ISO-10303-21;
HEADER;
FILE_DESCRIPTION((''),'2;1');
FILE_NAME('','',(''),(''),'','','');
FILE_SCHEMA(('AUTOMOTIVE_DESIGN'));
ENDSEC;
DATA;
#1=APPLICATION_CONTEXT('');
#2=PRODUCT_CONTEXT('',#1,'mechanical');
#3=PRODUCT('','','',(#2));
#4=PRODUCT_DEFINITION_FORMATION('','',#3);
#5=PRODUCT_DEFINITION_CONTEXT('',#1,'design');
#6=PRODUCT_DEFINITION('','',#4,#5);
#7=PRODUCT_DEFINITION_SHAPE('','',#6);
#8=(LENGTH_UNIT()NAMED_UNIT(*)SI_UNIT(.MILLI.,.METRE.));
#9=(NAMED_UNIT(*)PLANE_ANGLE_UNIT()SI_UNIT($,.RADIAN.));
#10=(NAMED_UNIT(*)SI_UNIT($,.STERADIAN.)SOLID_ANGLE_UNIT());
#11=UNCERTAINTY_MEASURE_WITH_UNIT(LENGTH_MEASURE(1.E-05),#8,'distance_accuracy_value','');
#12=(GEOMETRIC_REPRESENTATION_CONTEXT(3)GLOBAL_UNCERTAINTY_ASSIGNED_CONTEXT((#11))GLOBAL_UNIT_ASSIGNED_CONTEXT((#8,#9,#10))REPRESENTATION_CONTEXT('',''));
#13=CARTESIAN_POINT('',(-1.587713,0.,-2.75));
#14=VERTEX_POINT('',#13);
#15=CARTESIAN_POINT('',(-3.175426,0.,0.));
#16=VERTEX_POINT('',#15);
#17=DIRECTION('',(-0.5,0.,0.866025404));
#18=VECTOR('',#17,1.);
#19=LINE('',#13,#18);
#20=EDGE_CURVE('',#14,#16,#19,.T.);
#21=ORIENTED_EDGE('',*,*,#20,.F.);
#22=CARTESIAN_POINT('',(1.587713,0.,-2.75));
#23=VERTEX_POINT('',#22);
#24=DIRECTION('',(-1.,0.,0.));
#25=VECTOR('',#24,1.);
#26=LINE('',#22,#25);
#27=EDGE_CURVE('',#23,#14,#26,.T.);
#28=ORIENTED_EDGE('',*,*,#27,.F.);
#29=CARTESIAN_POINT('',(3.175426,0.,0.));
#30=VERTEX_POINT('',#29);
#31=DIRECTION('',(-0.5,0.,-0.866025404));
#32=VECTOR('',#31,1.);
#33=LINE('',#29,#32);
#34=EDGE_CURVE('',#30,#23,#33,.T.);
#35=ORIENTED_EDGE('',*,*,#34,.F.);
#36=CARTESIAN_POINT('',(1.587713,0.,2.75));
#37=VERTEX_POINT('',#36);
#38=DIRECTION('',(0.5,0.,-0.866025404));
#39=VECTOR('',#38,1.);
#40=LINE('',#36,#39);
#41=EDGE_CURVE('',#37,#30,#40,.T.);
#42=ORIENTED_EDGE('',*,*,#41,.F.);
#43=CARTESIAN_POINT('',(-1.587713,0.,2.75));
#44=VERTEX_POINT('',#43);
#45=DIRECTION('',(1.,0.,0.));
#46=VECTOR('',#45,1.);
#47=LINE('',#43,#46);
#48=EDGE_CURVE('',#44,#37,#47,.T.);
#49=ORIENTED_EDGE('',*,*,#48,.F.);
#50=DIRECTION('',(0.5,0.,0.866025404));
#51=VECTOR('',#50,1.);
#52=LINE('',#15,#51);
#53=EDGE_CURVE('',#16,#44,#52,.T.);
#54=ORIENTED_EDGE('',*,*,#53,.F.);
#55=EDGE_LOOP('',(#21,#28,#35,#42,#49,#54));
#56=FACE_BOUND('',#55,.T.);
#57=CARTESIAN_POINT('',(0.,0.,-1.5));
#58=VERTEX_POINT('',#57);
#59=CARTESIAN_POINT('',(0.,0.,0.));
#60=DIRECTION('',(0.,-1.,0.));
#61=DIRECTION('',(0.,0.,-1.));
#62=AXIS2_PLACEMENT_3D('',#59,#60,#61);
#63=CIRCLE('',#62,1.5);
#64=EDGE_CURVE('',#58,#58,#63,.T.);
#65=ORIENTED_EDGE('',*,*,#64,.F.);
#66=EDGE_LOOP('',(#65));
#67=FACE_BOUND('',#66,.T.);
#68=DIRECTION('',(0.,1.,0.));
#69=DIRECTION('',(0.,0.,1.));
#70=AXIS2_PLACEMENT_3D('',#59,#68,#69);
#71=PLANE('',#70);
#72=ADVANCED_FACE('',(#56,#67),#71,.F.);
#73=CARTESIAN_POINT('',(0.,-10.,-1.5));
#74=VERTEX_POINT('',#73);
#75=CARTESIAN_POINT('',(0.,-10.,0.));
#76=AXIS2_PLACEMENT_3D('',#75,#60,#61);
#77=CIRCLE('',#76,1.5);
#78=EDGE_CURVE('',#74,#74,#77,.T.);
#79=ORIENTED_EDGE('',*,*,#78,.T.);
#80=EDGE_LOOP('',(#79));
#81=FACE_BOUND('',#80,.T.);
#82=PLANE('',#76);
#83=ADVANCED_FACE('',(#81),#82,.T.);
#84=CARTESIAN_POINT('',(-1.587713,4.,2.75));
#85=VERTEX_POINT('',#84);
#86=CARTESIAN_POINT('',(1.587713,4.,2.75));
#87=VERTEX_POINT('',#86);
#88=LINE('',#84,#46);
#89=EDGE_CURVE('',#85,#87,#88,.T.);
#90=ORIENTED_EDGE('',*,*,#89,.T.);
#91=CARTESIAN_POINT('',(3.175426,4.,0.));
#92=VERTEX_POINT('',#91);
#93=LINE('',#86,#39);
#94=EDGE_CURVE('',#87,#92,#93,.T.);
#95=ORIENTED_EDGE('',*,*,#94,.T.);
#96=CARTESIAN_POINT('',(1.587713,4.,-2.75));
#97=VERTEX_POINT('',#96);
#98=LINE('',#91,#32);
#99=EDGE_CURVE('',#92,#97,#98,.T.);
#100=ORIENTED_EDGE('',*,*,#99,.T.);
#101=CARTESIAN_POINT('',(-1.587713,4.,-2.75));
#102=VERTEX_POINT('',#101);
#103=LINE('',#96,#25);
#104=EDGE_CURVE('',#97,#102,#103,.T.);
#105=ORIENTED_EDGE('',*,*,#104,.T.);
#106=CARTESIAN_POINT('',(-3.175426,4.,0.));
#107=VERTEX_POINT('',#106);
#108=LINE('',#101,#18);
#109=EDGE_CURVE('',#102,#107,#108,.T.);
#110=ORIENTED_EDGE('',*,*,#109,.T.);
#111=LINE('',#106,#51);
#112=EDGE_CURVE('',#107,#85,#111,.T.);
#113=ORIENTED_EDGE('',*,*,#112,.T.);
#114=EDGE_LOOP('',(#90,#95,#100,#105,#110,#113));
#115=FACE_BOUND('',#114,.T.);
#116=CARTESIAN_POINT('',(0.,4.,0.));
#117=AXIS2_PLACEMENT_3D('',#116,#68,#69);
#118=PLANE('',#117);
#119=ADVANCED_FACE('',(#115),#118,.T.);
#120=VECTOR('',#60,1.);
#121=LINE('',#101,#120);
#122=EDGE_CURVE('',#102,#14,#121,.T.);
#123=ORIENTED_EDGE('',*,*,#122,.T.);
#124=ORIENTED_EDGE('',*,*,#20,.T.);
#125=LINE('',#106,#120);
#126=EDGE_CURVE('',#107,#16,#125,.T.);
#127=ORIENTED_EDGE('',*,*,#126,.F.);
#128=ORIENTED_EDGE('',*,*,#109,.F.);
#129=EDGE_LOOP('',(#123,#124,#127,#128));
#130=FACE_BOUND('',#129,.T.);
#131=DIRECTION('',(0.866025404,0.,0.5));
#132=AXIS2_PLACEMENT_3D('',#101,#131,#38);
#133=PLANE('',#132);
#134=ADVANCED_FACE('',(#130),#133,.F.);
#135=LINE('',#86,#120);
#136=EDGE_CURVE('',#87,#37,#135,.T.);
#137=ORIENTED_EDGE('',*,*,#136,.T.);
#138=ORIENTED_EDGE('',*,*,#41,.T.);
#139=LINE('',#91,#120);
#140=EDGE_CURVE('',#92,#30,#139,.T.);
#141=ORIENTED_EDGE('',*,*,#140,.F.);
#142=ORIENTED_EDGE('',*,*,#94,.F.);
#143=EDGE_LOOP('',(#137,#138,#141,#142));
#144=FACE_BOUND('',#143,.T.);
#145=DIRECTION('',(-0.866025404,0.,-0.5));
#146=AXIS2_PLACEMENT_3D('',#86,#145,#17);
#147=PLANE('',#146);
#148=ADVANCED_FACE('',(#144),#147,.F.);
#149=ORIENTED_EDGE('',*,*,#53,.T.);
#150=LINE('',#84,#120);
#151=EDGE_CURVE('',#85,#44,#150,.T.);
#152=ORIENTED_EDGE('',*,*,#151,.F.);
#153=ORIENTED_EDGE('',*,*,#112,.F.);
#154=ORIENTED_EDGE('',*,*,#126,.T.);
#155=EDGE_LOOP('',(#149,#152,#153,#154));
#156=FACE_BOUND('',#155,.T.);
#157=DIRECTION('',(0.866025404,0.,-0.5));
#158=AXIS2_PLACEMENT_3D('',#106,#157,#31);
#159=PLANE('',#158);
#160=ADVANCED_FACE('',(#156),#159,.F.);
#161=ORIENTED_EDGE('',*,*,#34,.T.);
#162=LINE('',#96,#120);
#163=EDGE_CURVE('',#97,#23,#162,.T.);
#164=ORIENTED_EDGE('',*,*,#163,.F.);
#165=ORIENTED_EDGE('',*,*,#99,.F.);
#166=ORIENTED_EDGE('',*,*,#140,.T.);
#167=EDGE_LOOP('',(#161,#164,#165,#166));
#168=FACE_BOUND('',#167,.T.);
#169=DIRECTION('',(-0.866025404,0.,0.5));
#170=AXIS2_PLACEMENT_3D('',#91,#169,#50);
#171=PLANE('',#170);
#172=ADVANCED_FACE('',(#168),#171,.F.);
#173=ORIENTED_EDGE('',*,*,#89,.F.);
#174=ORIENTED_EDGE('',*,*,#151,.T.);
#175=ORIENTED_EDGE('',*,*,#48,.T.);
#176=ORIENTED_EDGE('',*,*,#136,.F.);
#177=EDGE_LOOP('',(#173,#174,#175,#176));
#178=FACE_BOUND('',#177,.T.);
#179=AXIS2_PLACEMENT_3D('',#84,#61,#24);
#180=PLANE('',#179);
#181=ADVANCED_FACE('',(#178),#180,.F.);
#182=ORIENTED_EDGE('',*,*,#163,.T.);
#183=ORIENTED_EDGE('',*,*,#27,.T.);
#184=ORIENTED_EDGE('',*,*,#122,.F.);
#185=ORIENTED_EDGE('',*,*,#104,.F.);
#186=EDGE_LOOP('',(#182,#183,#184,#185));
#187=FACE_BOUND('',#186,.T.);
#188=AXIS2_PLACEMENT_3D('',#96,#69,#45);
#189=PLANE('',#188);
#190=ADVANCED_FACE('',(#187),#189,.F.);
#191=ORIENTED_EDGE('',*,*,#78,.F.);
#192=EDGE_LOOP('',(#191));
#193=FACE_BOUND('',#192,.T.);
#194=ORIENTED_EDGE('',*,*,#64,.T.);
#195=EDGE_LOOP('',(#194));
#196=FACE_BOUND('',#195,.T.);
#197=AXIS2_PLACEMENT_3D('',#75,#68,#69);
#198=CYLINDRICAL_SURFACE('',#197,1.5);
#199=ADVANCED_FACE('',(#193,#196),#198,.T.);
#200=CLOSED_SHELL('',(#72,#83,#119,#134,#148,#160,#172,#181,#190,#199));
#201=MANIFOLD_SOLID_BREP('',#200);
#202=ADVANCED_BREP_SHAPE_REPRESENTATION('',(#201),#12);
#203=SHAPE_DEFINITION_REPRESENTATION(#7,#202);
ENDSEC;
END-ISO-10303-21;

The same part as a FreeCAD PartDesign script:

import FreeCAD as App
import Part
import Sketcher
from FreeCAD import Vector
Q = App.Units.Quantity


def add_polygon(sketch, points):
    """Adds a closed chain of lines whose ends are joined by coincident constraints."""
    first, n = sketch.GeometryCount, len(points)
    for a, b in zip(points, points[1:] + points[:1]):
        sketch.addGeometry(Part.LineSegment(App.Vector(*a, 0), App.Vector(*b, 0)), False)
    for i in range(n):
        sketch.addConstraint(Sketcher.Constraint("Coincident", first + i, 2, first + (i + 1) % n, 1))

doc = App.newDocument("Part")
params = doc.addObject("Spreadsheet::Sheet", "Params")
for row, (alias, value) in enumerate([
    ("pad1_length", "4 mm"),
    ("sketch2_diameter", "3 mm"),
    ("pad2_length", "10 mm"),
], start=1):
    params.set(f"A{row}", alias)
    params.set(f"B{row}", "=" + value)
    params.setAlias(f"B{row}", alias)

body = doc.addObject("PartDesign::Body", "Body")

sketch1 = body.newObject("Sketcher::SketchObject", "Sketch")
sketch1.AttachmentSupport = (doc.getObject("XZ_Plane"), [""])
sketch1.MapMode = "FlatFace"
add_polygon(sketch1, [(3.2, 0), (1.6, -2.8), (-1.6, -2.8), (-3.2, 0), (-1.6, 2.8), (1.6, 2.8)])
sketch1.addConstraint(Sketcher.Constraint("Horizontal", 1))
sketch1.addConstraint(Sketcher.Constraint("Horizontal", 4))
sketch1.addConstraint(Sketcher.Constraint("Symmetric", 0, 2, 3, 2, -1, 1))
sketch1.addConstraint(Sketcher.Constraint("Symmetric", 2, 2, 5, 2, -1, 1))
sketch1.addConstraint(Sketcher.Constraint("PointOnObject", 2, 2, -1))
sketch1.addConstraint(Sketcher.Constraint("Parallel", 2, 5))
sketch1.addConstraint(Sketcher.Constraint("Vertical", 1, 2, 3, 2))
sketch1.addConstraint(Sketcher.Constraint("Angle", 0, Q("-120 deg")))
sketch1.addConstraint(Sketcher.Constraint("DistanceY", 1, 2, 3, 2, Q("5.5 mm")))
sketch1.addConstraint(Sketcher.Constraint("DistanceX", 1, 2, 1, 1, Q("3.175426 mm")))
pad1 = body.newObject("PartDesign::Pad", "Pad")
pad1.Profile = sketch1
pad1.setExpression("Length", "Params.pad1_length")
pad1.Reversed = True

sketch2 = body.newObject("Sketcher::SketchObject", "Sketch001")
sketch2.AttachmentSupport = (doc.getObject("XZ_Plane"), [""])
sketch2.MapMode = "FlatFace"
sketch2.addGeometry(Part.Circle(Vector(0, 0, 0), Vector(0, 0, 1), 1.5), False)
sketch2.addConstraint(Sketcher.Constraint("Coincident", 0, 3, -1, 1))
sketch2.addConstraint(Sketcher.Constraint("Diameter", 0, Q("3 mm")))
sketch2.setExpression("Constraints[1]", "Params.sketch2_diameter")
pad2 = body.newObject("PartDesign::Pad", "Pad001")
pad2.Profile = sketch2
pad2.setExpression("Length", "Params.pad2_length")

doc.recompute()
